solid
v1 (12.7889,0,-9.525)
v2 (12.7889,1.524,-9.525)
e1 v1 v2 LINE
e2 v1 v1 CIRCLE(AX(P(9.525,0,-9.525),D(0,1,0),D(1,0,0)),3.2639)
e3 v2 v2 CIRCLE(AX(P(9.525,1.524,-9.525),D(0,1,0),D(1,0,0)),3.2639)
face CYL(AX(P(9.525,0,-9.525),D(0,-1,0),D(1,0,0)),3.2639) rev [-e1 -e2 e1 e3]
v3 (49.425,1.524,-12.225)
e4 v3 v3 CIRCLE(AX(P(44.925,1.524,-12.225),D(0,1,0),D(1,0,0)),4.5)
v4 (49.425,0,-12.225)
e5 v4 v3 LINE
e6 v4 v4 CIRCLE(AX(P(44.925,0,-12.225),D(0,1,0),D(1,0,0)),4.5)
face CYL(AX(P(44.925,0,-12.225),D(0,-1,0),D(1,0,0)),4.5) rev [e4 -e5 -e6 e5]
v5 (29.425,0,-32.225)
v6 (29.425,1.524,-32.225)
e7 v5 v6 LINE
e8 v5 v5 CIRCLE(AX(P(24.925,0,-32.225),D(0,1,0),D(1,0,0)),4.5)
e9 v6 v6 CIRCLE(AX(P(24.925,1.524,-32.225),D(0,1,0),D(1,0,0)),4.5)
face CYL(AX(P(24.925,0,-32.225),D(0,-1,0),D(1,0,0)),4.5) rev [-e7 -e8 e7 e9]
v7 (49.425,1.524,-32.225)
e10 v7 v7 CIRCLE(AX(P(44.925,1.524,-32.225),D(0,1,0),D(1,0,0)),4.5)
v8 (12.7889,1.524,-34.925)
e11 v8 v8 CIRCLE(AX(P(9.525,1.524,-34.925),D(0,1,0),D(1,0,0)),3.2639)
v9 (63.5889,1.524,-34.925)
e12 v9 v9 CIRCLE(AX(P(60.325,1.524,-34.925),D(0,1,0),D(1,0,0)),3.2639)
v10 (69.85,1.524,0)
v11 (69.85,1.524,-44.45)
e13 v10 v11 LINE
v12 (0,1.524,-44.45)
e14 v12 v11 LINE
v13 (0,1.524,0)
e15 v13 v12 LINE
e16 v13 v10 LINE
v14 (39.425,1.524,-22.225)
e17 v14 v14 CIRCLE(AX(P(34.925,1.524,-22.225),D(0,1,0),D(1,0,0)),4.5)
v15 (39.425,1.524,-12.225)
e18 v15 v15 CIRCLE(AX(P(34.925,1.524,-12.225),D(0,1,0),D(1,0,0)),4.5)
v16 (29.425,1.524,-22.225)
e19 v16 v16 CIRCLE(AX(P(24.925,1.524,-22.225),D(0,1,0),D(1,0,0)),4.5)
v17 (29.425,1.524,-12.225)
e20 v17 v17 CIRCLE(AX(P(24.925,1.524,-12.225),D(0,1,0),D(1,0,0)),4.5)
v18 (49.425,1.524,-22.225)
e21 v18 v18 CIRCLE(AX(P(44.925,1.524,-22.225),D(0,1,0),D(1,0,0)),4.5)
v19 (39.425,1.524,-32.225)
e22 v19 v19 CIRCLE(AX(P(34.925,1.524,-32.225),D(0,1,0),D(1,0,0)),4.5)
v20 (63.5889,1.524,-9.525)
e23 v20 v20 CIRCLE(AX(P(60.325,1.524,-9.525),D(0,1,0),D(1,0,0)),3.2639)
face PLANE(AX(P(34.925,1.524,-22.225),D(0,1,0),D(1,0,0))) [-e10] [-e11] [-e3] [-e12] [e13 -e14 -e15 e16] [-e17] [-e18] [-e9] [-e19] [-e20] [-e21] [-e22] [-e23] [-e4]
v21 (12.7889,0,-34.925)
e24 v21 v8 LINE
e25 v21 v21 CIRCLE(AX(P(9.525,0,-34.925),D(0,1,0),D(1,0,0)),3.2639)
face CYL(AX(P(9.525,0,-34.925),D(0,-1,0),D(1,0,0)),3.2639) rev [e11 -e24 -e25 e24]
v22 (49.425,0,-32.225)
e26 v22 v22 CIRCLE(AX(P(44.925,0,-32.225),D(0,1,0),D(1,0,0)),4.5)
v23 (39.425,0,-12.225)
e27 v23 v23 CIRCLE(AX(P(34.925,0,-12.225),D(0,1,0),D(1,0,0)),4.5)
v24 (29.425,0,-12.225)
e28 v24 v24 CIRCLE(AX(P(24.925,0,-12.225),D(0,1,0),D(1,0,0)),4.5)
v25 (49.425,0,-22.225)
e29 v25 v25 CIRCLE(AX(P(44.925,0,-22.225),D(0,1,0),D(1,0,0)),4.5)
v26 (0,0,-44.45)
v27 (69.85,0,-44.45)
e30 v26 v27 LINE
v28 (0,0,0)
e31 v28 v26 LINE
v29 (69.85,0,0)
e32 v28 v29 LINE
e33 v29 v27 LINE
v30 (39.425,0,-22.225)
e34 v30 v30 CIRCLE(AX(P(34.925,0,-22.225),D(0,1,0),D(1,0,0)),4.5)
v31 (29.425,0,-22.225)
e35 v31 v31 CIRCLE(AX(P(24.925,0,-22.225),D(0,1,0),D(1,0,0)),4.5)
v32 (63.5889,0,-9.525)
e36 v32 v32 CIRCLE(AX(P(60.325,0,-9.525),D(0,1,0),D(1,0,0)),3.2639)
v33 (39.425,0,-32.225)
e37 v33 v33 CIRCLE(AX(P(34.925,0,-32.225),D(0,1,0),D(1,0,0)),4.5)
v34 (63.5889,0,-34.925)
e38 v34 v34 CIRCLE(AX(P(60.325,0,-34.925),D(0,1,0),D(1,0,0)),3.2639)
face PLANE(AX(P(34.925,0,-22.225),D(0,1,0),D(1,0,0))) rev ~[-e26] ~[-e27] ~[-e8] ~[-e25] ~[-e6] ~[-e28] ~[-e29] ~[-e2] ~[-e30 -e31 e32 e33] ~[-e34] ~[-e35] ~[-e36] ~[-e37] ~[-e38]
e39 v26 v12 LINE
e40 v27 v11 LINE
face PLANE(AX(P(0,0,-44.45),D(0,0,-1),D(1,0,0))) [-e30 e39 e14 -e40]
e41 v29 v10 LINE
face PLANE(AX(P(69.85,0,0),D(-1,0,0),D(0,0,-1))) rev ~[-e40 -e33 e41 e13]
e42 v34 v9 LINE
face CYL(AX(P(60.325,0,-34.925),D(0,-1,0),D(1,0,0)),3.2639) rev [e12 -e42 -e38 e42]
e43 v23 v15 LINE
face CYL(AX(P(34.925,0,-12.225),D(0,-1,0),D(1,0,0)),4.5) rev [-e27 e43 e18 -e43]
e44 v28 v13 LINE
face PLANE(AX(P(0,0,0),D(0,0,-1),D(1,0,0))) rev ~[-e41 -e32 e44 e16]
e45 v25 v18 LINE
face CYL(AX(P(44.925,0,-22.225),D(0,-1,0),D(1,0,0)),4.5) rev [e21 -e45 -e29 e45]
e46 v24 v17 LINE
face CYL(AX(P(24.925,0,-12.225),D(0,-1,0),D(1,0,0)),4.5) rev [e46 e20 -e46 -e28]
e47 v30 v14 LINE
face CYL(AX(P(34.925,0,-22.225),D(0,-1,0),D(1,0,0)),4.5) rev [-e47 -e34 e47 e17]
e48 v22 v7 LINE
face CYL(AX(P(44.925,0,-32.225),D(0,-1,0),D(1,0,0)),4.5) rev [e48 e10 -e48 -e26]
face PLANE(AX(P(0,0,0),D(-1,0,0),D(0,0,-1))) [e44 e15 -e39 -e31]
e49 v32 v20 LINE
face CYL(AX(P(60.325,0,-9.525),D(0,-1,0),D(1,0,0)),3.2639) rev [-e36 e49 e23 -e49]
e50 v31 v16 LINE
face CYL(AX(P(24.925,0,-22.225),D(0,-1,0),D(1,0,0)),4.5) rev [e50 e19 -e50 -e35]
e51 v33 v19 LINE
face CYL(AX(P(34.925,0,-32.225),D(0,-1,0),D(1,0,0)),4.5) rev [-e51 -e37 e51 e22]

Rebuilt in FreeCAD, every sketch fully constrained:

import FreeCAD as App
import Part
import Sketcher
from FreeCAD import Vector
Q = App.Units.Quantity

doc = App.newDocument("Part")
body = doc.addObject("PartDesign::Body", "Body")

# Sketch on XZ plane
sketch1 = body.newObject("Sketcher::SketchObject", "Sketch")
sketch1.AttachmentSupport = (doc.getObject("XZ_Plane"), [""])
sketch1.MapMode = "FlatFace"
sketch1.addGeometry(Part.LineSegment(Vector(0, -44.45, 0), Vector(0, 0, 0)), False)
sketch1.addGeometry(Part.LineSegment(Vector(0, 0, 0), Vector(69.85, 0, 0)), False)
sketch1.addGeometry(Part.LineSegment(Vector(69.85, 0, 0), Vector(69.85, -44.45, 0)), False)
sketch1.addGeometry(Part.LineSegment(Vector(69.85, -44.45, 0), Vector(0, -44.45, 0)), False)
sketch1.addGeometry(Part.Circle(Vector(9.525, -9.525, 0), Vector(0, 0, 1), 3.2639), False)
sketch1.addGeometry(Part.Circle(Vector(24.925, -12.225, 0), Vector(0, 0, 1), 4.5), False)
sketch1.addGeometry(Part.Circle(Vector(34.925, -12.225, 0), Vector(0, 0, 1), 4.5), False)
sketch1.addGeometry(Part.Circle(Vector(44.925, -12.225, 0), Vector(0, 0, 1), 4.5), False)
sketch1.addGeometry(Part.Circle(Vector(60.325, -9.525, 0), Vector(0, 0, 1), 3.2639), False)
sketch1.addGeometry(Part.Circle(Vector(24.925, -22.225, 0), Vector(0, 0, 1), 4.5), False)
sketch1.addGeometry(Part.Circle(Vector(34.925, -22.225, 0), Vector(0, 0, 1), 4.5), False)
sketch1.addGeometry(Part.Circle(Vector(9.525, -34.925, 0), Vector(0, 0, 1), 3.2639), False)
sketch1.addGeometry(Part.Circle(Vector(24.925, -32.225, 0), Vector(0, 0, 1), 4.5), False)
sketch1.addGeometry(Part.Circle(Vector(34.925, -32.225, 0), Vector(0, 0, 1), 4.5), False)
sketch1.addGeometry(Part.Circle(Vector(44.925, -22.225, 0), Vector(0, 0, 1), 4.5), False)
sketch1.addGeometry(Part.Circle(Vector(44.925, -32.225, 0), Vector(0, 0, 1), 4.5), False)
sketch1.addGeometry(Part.Circle(Vector(60.325, -34.925, 0), Vector(0, 0, 1), 3.2639), False)
sketch1.addConstraint(Sketcher.Constraint("Coincident", 0, 2, 1, 1))
sketch1.addConstraint(Sketcher.Constraint("Coincident", 1, 2, 2, 1))
sketch1.addConstraint(Sketcher.Constraint("Coincident", 2, 2, 3, 1))
sketch1.addConstraint(Sketcher.Constraint("Coincident", 3, 2, 0, 1))
sketch1.addConstraint(Sketcher.Constraint("Vertical", 0))
sketch1.addConstraint(Sketcher.Constraint("Horizontal", 1))
sketch1.addConstraint(Sketcher.Constraint("Vertical", 2))
sketch1.addConstraint(Sketcher.Constraint("Horizontal", 3))
sketch1.addConstraint(Sketcher.Constraint("Coincident", 0, 2, -1, 1))
sketch1.addConstraint(Sketcher.Constraint("Equal", 5, 6))
sketch1.addConstraint(Sketcher.Constraint("Equal", 6, 7))
sketch1.addConstraint(Sketcher.Constraint("Equal", 4, 8))
sketch1.addConstraint(Sketcher.Constraint("Equal", 7, 9))
sketch1.addConstraint(Sketcher.Constraint("Equal", 9, 10))
sketch1.addConstraint(Sketcher.Constraint("Equal", 8, 11))
sketch1.addConstraint(Sketcher.Constraint("Equal", 10, 12))
sketch1.addConstraint(Sketcher.Constraint("Equal", 12, 13))
sketch1.addConstraint(Sketcher.Constraint("Equal", 13, 14))
sketch1.addConstraint(Sketcher.Constraint("Equal", 14, 15))
sketch1.addConstraint(Sketcher.Constraint("Equal", 11, 16))
sketch1.addConstraint(Sketcher.Constraint("Horizontal", 5, 3, 6, 3))
sketch1.addConstraint(Sketcher.Constraint("Horizontal", 6, 3, 7, 3))
sketch1.addConstraint(Sketcher.Constraint("Horizontal", 4, 3, 8, 3))
sketch1.addConstraint(Sketcher.Constraint("Horizontal", 9, 3, 10, 3))
sketch1.addConstraint(Sketcher.Constraint("Horizontal", 12, 3, 13, 3))
sketch1.addConstraint(Sketcher.Constraint("Horizontal", 10, 3, 14, 3))
sketch1.addConstraint(Sketcher.Constraint("Horizontal", 13, 3, 15, 3))
sketch1.addConstraint(Sketcher.Constraint("Horizontal", 11, 3, 16, 3))
sketch1.addConstraint(Sketcher.Constraint("Vertical", 5, 3, 9, 3))
sketch1.addConstraint(Sketcher.Constraint("Vertical", 6, 3, 10, 3))
sketch1.addConstraint(Sketcher.Constraint("Vertical", 4, 3, 11, 3))
sketch1.addConstraint(Sketcher.Constraint("Vertical", 9, 3, 12, 3))
sketch1.addConstraint(Sketcher.Constraint("Vertical", 10, 3, 13, 3))
sketch1.addConstraint(Sketcher.Constraint("Vertical", 7, 3, 14, 3))
sketch1.addConstraint(Sketcher.Constraint("Vertical", 14, 3, 15, 3))
sketch1.addConstraint(Sketcher.Constraint("Vertical", 8, 3, 16, 3))
sketch1.addConstraint(Sketcher.Constraint("Diameter", 4, Q("0.257 in")))
sketch1.addConstraint(Sketcher.Constraint("DistanceX", 4, 3, 6, 3, Q("1 in")))
sketch1.addConstraint(Sketcher.Constraint("DistanceX", 6, 3, 8, 3, Q("1 in")))
sketch1.addConstraint(Sketcher.Constraint("DistanceY", 11, 3, 4, 3, Q("1 in")))
sketch1.addConstraint(Sketcher.Constraint("DistanceX", 1, 1, 1, 2, Q("2.75 in")))
sketch1.addConstraint(Sketcher.Constraint("DistanceY", 0, 1, 0, 2, Q("1.75 in")))
sketch1.addConstraint(Sketcher.Constraint("DistanceY", 9, 3, 4, 3, Q("0.5 in")))
sketch1.addConstraint(Sketcher.Constraint("Diameter", 5, Q("9 mm")))
sketch1.addConstraint(Sketcher.Constraint("DistanceX", -1, 1, 4, 3, Q("0.375 in")))
sketch1.addConstraint(Sketcher.Constraint("DistanceY", 4, 3, -1, 1, Q("0.375 in")))
sketch1.addConstraint(Sketcher.Constraint("DistanceX", -1, 1, 5, 3, Q("24.925 mm")))
sketch1.addConstraint(Sketcher.Constraint("DistanceY", 5, 3, -1, 1, Q("12.225 mm")))
sketch1.addConstraint(Sketcher.Constraint("DistanceX", -1, 1, 7, 3, Q("44.925 mm")))
sketch1.addConstraint(Sketcher.Constraint("DistanceY", 12, 3, -1, 1, Q("32.225 mm")))
pad1 = body.newObject("PartDesign::Pad", "Pad")
pad1.Profile = sketch1
pad1.Length = Q("0.06 in")
pad1.Reversed = True

doc.recompute()
